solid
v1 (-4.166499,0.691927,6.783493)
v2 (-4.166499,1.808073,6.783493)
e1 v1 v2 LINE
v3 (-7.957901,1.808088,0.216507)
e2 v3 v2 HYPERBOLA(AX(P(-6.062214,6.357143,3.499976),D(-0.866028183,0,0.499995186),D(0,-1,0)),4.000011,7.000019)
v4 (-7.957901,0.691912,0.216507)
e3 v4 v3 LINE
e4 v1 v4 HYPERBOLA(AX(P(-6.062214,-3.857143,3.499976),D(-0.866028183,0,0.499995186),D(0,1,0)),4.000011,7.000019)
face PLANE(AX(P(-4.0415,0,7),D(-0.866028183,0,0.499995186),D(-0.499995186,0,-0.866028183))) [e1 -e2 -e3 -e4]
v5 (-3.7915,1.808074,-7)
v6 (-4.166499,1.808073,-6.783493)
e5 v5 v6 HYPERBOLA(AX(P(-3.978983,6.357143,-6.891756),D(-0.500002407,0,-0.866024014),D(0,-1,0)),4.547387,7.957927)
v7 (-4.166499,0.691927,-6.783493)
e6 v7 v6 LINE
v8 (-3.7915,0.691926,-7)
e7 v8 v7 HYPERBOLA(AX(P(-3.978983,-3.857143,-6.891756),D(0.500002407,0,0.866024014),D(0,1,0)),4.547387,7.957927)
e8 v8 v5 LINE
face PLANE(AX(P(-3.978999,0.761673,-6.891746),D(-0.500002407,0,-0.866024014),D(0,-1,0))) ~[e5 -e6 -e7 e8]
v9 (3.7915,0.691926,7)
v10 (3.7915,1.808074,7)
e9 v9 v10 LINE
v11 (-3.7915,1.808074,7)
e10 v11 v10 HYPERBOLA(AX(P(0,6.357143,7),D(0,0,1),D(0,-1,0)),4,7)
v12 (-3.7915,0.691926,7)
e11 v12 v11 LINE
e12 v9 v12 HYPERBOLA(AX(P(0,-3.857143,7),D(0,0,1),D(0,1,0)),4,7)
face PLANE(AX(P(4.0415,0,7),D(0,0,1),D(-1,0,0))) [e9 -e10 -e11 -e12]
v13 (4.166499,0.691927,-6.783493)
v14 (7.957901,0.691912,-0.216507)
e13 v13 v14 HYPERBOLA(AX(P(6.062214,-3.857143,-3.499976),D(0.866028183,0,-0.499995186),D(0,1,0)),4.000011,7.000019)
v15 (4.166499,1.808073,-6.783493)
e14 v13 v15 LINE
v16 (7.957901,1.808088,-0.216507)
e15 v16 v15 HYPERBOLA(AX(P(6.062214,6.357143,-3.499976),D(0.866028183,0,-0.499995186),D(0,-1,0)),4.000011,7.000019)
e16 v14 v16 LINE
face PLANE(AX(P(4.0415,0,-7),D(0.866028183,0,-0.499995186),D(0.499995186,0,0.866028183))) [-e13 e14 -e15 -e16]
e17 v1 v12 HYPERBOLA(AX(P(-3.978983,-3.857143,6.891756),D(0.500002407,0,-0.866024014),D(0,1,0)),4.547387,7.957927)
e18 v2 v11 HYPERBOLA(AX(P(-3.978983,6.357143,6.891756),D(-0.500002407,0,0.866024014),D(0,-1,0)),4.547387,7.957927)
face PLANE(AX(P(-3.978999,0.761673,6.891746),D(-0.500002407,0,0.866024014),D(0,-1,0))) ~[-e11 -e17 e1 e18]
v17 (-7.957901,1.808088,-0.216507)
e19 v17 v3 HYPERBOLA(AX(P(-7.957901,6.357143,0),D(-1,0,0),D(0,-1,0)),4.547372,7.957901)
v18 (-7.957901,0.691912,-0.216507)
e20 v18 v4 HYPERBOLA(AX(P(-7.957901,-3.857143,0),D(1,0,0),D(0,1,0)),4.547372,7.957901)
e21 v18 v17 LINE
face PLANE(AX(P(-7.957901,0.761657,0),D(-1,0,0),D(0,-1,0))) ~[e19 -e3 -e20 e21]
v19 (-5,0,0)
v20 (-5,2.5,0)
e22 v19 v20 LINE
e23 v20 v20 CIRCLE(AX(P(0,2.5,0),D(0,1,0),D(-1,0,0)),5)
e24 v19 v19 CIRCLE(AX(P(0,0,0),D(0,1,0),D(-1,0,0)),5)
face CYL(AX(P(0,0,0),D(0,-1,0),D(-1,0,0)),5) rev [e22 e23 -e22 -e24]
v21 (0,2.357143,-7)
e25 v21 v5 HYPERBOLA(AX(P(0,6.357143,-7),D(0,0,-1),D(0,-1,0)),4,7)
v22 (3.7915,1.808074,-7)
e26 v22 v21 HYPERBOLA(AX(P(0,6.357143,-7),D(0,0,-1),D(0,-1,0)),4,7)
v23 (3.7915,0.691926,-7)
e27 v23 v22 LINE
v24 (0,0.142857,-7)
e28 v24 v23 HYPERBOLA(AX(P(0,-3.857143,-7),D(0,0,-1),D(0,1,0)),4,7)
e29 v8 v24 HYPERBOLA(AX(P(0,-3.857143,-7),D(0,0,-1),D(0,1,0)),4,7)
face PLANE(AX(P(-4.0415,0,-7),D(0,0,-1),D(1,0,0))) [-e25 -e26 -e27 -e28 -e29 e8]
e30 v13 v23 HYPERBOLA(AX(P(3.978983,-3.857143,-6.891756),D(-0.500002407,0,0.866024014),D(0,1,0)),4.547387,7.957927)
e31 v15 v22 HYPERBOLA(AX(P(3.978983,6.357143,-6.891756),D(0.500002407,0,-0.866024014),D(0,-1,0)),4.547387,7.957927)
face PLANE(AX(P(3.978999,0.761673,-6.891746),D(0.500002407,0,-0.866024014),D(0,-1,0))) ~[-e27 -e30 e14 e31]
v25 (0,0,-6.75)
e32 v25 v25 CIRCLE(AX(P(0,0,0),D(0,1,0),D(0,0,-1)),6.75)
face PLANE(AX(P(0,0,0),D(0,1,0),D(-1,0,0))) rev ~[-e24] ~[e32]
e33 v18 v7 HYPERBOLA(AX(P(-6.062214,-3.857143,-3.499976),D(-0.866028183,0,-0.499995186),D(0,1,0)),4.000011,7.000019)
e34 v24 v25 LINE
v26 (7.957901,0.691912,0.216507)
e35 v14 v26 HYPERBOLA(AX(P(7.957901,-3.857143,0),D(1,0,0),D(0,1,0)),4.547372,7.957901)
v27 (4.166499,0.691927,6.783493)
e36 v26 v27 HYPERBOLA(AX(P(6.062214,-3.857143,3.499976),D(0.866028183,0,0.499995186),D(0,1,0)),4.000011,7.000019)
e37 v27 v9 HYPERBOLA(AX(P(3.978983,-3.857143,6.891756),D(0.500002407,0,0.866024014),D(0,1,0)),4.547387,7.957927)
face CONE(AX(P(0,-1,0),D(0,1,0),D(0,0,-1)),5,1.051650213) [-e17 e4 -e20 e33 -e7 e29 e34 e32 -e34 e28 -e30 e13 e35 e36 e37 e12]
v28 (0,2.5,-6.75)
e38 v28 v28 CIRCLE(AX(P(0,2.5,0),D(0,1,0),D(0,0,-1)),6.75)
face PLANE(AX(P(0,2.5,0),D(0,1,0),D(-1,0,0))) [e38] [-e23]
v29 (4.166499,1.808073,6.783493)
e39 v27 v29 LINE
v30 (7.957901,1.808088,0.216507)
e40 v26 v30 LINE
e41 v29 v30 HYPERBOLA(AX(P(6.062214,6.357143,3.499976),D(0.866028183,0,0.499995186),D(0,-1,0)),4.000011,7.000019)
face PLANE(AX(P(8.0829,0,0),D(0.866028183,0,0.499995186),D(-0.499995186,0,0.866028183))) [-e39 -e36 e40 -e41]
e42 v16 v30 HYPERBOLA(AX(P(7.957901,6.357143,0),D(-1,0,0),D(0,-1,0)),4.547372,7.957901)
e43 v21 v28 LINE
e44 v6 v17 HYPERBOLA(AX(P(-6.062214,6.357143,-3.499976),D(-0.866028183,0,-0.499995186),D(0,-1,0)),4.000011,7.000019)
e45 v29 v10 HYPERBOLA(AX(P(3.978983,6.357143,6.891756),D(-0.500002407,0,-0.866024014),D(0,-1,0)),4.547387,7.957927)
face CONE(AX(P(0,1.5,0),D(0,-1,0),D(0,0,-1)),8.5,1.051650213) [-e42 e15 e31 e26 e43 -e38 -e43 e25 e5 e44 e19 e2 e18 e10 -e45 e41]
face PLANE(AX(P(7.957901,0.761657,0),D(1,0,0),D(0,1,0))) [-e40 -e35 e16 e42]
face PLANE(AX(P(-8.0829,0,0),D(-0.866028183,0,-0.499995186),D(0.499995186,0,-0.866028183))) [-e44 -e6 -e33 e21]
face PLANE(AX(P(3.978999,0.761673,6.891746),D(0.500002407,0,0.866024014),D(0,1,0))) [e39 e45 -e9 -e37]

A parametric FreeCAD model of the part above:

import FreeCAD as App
import Part
import Sketcher

V = App.Vector
Q = App.Units.Quantity


def edges_at(feature, points):
    """Names of the edges that pass closest to the given points."""
    edges = feature.Shape.Edges
    near = lambda p: min(range(len(edges)), key=lambda i: edges[i].distToShape(Part.Vertex(*p))[0])
    return sorted({f"Edge{near(p) + 1}" for p in points})


def add_polygon(sketch, points):
    """Adds a closed chain of lines whose ends are joined by coincident constraints."""
    first, n = sketch.GeometryCount, len(points)
    for a, b in zip(points, points[1:] + points[:1]):
        sketch.addGeometry(Part.LineSegment(App.Vector(*a, 0), App.Vector(*b, 0)), False)
    for i in range(n):
        sketch.addConstraint(Sketcher.Constraint("Coincident", first + i, 2, first + (i + 1) % n, 1))

doc = App.newDocument("Part")
body = doc.addObject("PartDesign::Body", "Body")

# Sketch on XZ plane
sketch1 = body.newObject("Sketcher::SketchObject", "Sketch")
sketch1.AttachmentSupport = (doc.getObject("XZ_Plane"), [""])
sketch1.MapMode = "FlatFace"
add_polygon(sketch1, [(8.0829, 0), (4.0415, -7), (-4.0415, -7), (-8.0829, 0), (-4.0415, 7), (4.0415, 7)])  # lines 0-5
sketch1.addGeometry(Part.Circle(V(0, 0, 0), V(0, 0, 1), 5), False)  # 6
sketch1.addConstraint([
    Sketcher.Constraint("Horizontal", 1),
    Sketcher.Constraint("Horizontal", 4),
    Sketcher.Constraint("Coincident", 6, 3, -1, 1),
    Sketcher.Constraint("Symmetric", 0, 2, 3, 2, -1, 1),
    Sketcher.Constraint("Symmetric", 2, 2, 5, 2, -1, 1),
    Sketcher.Constraint("PointOnObject", 2, 2, -1),
    Sketcher.Constraint("Parallel", 2, 5),
    Sketcher.Constraint("Vertical", 1, 2, 3, 2),
    Sketcher.Constraint("Diameter", 6, Q("10 mm")),
    Sketcher.Constraint("DistanceY", 1, 2, 3, 2, Q("14 mm")),
    Sketcher.Constraint("Angle", 0, Q("-119.9997 deg")),
    Sketcher.Constraint("DistanceX", 1, 2, 1, 1, Q("8.083 mm")),
])
pad1 = body.newObject("PartDesign::Pad", "Pad")
pad1.Profile = sketch1
pad1.Length = 2.5
pad1.Reversed = True

# Sketch on YZ plane
sketch2 = body.newObject("Sketcher::SketchObject", "Sketch001")
sketch2.AttachmentSupport = (doc.getObject("YZ_Plane"), [""])
sketch2.MapMode = "FlatFace"
add_polygon(sketch2, [(3.5, -9), (3.5, -5), (1.5, -8.5), (1, -8.5), (-1, -5), (-1, -9)])  # lines 0-5
sketch2.addConstraint([
    Sketcher.Constraint("Vertical", 0),
    Sketcher.Constraint("Horizontal", 2),
    Sketcher.Constraint("Vertical", 4),
    Sketcher.Constraint("Horizontal", 5),
    Sketcher.Constraint("Horizontal", 0, 2, 3, 2),
    Sketcher.Constraint("Equal", 1, 3),
    Sketcher.Constraint("DistanceY", 0, 1, 0, 2, Q("4 mm")),
    Sketcher.Constraint("DistanceX", 2, 2, 2, 1, Q("0.5 mm")),
    Sketcher.Constraint("DistanceX", -1, 1, 2, 2, Q("1 mm")),
    Sketcher.Constraint("DistanceX", 3, 2, -1, 1, Q("1 mm")),
    Sketcher.Constraint("DistanceY", 4, 2, 2, 2, Q("0.5 mm")),
    Sketcher.Constraint("DistanceY", 0, 2, -1, 1, Q("5 mm")),
])
groove = body.newObject("PartDesign::Groove", "Groove")
groove.Profile = sketch2
groove.ReferenceAxis = (sketch2, ["H_Axis"])
groove.Angle = 360
doc.recompute()

chamfer = body.newObject("PartDesign::Chamfer", "Chamfer")
chamfer.Base = (groove, edges_at(groove, [
    (-8.083, 1.25, 0),
    (-4.042, 1.25, -7),
    (4.042, 1.25, -7),
    (8.083, 1.25, 0),
    (4.042, 1.25, 7),
    (-4.042, 1.25, 7),
]))
chamfer.Size = 0.25

doc.recompute()
